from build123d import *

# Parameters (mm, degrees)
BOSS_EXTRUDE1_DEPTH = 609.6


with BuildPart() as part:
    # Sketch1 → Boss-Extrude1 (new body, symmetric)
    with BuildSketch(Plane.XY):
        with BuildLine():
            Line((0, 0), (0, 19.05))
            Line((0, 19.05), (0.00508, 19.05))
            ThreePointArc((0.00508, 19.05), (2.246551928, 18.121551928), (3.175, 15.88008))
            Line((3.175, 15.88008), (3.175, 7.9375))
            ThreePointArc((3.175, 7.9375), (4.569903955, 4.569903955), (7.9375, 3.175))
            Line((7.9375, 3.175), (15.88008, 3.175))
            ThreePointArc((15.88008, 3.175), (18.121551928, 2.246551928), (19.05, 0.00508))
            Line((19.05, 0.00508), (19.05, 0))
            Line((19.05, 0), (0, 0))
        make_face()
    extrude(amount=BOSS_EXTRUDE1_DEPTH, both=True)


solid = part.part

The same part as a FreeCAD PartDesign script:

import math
import FreeCAD as App
import Part
import Sketcher
from FreeCAD import Vector
Q = App.Units.Quantity

doc = App.newDocument("Part")
body = doc.addObject("PartDesign::Body", "Body")

sketch1 = body.newObject("Sketcher::SketchObject", "Sketch")
sketch1.AttachmentSupport = (doc.getObject("XY_Plane"), [""])
sketch1.MapMode = "FlatFace"
sketch1.addGeometry(Part.LineSegment(Vector(0, 19.05, 0), Vector(0, 0, 0)), False)
sketch1.addGeometry(Part.LineSegment(Vector(0, 0, 0), Vector(19.05, 0, 0)), False)
sketch1.addGeometry(Part.LineSegment(Vector(19.05, 0, 0), Vector(19.05, 0.005, 0)), False)
sketch1.addGeometry(Part.ArcOfCircle(Part.Circle(Vector(15.88, 0.005, 0), Vector(0, 0, 1), 3.17), math.radians(0), math.radians(90)), False)
sketch1.addGeometry(Part.LineSegment(Vector(15.88, 3.175, 0), Vector(7.938, 3.175, 0)), False)
sketch1.addGeometry(Part.ArcOfCircle(Part.Circle(Vector(7.938, 7.938, 0), Vector(0, 0, 1), 4.763), math.radians(-180), math.radians(-90)), False)
sketch1.addGeometry(Part.LineSegment(Vector(3.175, 7.938, 0), Vector(3.175, 15.88, 0)), False)
sketch1.addGeometry(Part.ArcOfCircle(Part.Circle(Vector(0.005, 15.88, 0), Vector(0, 0, 1), 3.17), math.radians(0), math.radians(90)), False)
sketch1.addGeometry(Part.LineSegment(Vector(0.005, 19.05, 0), Vector(0, 19.05, 0)), False)
sketch1.addConstraint(Sketcher.Constraint("Coincident", 0, 2, 1, 1))
sketch1.addConstraint(Sketcher.Constraint("Coincident", 1, 2, 2, 1))
sketch1.addConstraint(Sketcher.Constraint("Tangent", 2, 2, 3, 1))
sketch1.addConstraint(Sketcher.Constraint("Tangent", 3, 2, 4, 1))
sketch1.addConstraint(Sketcher.Constraint("Tangent", 4, 2, 5, 2))
sketch1.addConstraint(Sketcher.Constraint("Tangent", 5, 1, 6, 1))
sketch1.addConstraint(Sketcher.Constraint("Tangent", 6, 2, 7, 1))
sketch1.addConstraint(Sketcher.Constraint("Tangent", 7, 2, 8, 1))
sketch1.addConstraint(Sketcher.Constraint("Coincident", 8, 2, 0, 1))
sketch1.addConstraint(Sketcher.Constraint("Vertical", 0))
sketch1.addConstraint(Sketcher.Constraint("Horizontal", 1))
sketch1.addConstraint(Sketcher.Constraint("Horizontal", 4))
sketch1.addConstraint(Sketcher.Constraint("Vertical", 6))
sketch1.addConstraint(Sketcher.Constraint("Coincident", 0, 2, -1, 1))
sketch1.addConstraint(Sketcher.Constraint("Equal", 3, 7))
sketch1.addConstraint(Sketcher.Constraint("Horizontal", 3, 3, 2, 2))
sketch1.addConstraint(Sketcher.Constraint("Equal", 1, 0))
sketch1.addConstraint(Sketcher.Constraint("Equal", 8, 2))
sketch1.addConstraint(Sketcher.Constraint("Equal", 4, 6))
sketch1.addConstraint(Sketcher.Constraint("Radius", 5, Q("0.1875 in")))
sketch1.addConstraint(Sketcher.Constraint("DistanceX", 1, 1, 1, 2, Q("0.75 in")))
sketch1.addConstraint(Sketcher.Constraint("Radius", 3, Q("0.1248 in")))
sketch1.addConstraint(Sketcher.Constraint("DistanceX", 4, 2, 4, 1, Q("0.3127 in")))
pad1 = body.newObject("PartDesign::Pad", "Pad")
pad1.Profile = sketch1
pad1.Length = Q("48 in")
pad1.Midplane = True

doc.recompute()
